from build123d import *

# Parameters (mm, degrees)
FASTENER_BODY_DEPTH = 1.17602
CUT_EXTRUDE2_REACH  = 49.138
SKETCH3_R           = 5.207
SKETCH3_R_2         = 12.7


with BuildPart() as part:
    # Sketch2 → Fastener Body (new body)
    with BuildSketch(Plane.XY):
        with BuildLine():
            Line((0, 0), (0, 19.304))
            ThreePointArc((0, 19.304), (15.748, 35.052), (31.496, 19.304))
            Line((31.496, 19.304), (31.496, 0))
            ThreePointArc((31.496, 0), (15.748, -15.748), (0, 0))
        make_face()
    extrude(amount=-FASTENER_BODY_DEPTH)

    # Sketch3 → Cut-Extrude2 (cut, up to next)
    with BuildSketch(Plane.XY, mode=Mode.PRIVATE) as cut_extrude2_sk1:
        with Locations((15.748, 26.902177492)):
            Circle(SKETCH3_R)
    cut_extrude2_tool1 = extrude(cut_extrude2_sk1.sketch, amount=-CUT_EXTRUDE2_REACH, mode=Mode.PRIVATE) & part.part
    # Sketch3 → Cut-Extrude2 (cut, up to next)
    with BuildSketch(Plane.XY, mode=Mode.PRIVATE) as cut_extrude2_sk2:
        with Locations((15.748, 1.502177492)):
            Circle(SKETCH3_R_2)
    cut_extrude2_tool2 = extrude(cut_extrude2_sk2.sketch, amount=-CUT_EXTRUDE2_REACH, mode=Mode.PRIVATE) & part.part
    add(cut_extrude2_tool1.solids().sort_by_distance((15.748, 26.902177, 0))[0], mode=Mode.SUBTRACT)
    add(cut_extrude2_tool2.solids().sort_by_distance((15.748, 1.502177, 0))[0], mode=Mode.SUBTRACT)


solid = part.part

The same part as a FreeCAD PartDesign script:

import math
import FreeCAD as App
import Part
import Sketcher
from FreeCAD import Vector
Q = App.Units.Quantity

doc = App.newDocument("Part")
body = doc.addObject("PartDesign::Body", "Body")

# Sketch on XY plane
sketch1 = body.newObject("Sketcher::SketchObject", "Sketch")
sketch1.AttachmentSupport = (doc.getObject("XY_Plane"), [""])
sketch1.MapMode = "FlatFace"
sketch1.addGeometry([
    Part.LineSegment(Vector(0, 19, 0), Vector(0, 0, 0)),
    Part.ArcOfCircle(Part.Circle(Vector(16, 0, 0), Vector(0, 0, 1), 16), math.radians(180), math.radians(360)),
    Part.LineSegment(Vector(31, 0, 0), Vector(31, 19, 0)),
    Part.ArcOfCircle(Part.Circle(Vector(16, 19, 0), Vector(0, 0, 1), 16), math.radians(0), math.radians(180)),
], False)
sketch1.addConstraint([
    Sketcher.Constraint("Tangent", 0, 2, 1, 1),
    Sketcher.Constraint("Tangent", 1, 2, 2, 1),
    Sketcher.Constraint("Tangent", 2, 2, 3, 1),
    Sketcher.Constraint("Tangent", 3, 2, 0, 1),
    Sketcher.Constraint("Vertical", 0),
    Sketcher.Constraint("Vertical", 2),
    Sketcher.Constraint("Coincident", 0, 2, -1, 1),
    Sketcher.Constraint("Radius", 1, Q("0.62 in")),
    Sketcher.Constraint("DistanceY", 0, 2, 0, 1, Q("0.76 in")),
])
pad1 = body.newObject("PartDesign::Pad", "Pad")
pad1.Profile = sketch1
pad1.Length = Q("0.0463 in")
pad1.Reversed = True

# Sketch on XY plane
sketch2 = body.newObject("Sketcher::SketchObject", "Sketch001")
sketch2.AttachmentSupport = (doc.getObject("XY_Plane"), [""])
sketch2.MapMode = "FlatFace"
sketch2.addGeometry(Part.Circle(Vector(16, 27, 0), Vector(0, 0, 1), 5), False)
sketch2.addConstraint([
    Sketcher.Constraint("Diameter", 0, Q("0.41 in")),
    Sketcher.Constraint("DistanceX", -1, 1, 0, 3, Q("0.62 in")),
    Sketcher.Constraint("DistanceY", -1, 1, 0, 3, 26.902177),
])
pocket1 = body.newObject("PartDesign::Pocket", "Pocket")
pocket1.Profile = sketch2
pocket1.Type = "UpToFirst"

# Sketch on XY plane
sketch3 = body.newObject("Sketcher::SketchObject", "Sketch002")
sketch3.AttachmentSupport = (doc.getObject("XY_Plane"), [""])
sketch3.MapMode = "FlatFace"
sketch3.addGeometry(Part.Circle(Vector(16, 2, 0), Vector(0, 0, 1), 13), False)
sketch3.addConstraint([
    Sketcher.Constraint("Diameter", 0, Q("1 in")),
    Sketcher.Constraint("DistanceX", -1, 1, 0, 3, Q("0.62 in")),
    Sketcher.Constraint("DistanceY", -1, 1, 0, 3, 1.502177),
])
pocket2 = body.newObject("PartDesign::Pocket", "Pocket001")
pocket2.Profile = sketch3
pocket2.Type = "UpToFirst"

doc.recompute()
